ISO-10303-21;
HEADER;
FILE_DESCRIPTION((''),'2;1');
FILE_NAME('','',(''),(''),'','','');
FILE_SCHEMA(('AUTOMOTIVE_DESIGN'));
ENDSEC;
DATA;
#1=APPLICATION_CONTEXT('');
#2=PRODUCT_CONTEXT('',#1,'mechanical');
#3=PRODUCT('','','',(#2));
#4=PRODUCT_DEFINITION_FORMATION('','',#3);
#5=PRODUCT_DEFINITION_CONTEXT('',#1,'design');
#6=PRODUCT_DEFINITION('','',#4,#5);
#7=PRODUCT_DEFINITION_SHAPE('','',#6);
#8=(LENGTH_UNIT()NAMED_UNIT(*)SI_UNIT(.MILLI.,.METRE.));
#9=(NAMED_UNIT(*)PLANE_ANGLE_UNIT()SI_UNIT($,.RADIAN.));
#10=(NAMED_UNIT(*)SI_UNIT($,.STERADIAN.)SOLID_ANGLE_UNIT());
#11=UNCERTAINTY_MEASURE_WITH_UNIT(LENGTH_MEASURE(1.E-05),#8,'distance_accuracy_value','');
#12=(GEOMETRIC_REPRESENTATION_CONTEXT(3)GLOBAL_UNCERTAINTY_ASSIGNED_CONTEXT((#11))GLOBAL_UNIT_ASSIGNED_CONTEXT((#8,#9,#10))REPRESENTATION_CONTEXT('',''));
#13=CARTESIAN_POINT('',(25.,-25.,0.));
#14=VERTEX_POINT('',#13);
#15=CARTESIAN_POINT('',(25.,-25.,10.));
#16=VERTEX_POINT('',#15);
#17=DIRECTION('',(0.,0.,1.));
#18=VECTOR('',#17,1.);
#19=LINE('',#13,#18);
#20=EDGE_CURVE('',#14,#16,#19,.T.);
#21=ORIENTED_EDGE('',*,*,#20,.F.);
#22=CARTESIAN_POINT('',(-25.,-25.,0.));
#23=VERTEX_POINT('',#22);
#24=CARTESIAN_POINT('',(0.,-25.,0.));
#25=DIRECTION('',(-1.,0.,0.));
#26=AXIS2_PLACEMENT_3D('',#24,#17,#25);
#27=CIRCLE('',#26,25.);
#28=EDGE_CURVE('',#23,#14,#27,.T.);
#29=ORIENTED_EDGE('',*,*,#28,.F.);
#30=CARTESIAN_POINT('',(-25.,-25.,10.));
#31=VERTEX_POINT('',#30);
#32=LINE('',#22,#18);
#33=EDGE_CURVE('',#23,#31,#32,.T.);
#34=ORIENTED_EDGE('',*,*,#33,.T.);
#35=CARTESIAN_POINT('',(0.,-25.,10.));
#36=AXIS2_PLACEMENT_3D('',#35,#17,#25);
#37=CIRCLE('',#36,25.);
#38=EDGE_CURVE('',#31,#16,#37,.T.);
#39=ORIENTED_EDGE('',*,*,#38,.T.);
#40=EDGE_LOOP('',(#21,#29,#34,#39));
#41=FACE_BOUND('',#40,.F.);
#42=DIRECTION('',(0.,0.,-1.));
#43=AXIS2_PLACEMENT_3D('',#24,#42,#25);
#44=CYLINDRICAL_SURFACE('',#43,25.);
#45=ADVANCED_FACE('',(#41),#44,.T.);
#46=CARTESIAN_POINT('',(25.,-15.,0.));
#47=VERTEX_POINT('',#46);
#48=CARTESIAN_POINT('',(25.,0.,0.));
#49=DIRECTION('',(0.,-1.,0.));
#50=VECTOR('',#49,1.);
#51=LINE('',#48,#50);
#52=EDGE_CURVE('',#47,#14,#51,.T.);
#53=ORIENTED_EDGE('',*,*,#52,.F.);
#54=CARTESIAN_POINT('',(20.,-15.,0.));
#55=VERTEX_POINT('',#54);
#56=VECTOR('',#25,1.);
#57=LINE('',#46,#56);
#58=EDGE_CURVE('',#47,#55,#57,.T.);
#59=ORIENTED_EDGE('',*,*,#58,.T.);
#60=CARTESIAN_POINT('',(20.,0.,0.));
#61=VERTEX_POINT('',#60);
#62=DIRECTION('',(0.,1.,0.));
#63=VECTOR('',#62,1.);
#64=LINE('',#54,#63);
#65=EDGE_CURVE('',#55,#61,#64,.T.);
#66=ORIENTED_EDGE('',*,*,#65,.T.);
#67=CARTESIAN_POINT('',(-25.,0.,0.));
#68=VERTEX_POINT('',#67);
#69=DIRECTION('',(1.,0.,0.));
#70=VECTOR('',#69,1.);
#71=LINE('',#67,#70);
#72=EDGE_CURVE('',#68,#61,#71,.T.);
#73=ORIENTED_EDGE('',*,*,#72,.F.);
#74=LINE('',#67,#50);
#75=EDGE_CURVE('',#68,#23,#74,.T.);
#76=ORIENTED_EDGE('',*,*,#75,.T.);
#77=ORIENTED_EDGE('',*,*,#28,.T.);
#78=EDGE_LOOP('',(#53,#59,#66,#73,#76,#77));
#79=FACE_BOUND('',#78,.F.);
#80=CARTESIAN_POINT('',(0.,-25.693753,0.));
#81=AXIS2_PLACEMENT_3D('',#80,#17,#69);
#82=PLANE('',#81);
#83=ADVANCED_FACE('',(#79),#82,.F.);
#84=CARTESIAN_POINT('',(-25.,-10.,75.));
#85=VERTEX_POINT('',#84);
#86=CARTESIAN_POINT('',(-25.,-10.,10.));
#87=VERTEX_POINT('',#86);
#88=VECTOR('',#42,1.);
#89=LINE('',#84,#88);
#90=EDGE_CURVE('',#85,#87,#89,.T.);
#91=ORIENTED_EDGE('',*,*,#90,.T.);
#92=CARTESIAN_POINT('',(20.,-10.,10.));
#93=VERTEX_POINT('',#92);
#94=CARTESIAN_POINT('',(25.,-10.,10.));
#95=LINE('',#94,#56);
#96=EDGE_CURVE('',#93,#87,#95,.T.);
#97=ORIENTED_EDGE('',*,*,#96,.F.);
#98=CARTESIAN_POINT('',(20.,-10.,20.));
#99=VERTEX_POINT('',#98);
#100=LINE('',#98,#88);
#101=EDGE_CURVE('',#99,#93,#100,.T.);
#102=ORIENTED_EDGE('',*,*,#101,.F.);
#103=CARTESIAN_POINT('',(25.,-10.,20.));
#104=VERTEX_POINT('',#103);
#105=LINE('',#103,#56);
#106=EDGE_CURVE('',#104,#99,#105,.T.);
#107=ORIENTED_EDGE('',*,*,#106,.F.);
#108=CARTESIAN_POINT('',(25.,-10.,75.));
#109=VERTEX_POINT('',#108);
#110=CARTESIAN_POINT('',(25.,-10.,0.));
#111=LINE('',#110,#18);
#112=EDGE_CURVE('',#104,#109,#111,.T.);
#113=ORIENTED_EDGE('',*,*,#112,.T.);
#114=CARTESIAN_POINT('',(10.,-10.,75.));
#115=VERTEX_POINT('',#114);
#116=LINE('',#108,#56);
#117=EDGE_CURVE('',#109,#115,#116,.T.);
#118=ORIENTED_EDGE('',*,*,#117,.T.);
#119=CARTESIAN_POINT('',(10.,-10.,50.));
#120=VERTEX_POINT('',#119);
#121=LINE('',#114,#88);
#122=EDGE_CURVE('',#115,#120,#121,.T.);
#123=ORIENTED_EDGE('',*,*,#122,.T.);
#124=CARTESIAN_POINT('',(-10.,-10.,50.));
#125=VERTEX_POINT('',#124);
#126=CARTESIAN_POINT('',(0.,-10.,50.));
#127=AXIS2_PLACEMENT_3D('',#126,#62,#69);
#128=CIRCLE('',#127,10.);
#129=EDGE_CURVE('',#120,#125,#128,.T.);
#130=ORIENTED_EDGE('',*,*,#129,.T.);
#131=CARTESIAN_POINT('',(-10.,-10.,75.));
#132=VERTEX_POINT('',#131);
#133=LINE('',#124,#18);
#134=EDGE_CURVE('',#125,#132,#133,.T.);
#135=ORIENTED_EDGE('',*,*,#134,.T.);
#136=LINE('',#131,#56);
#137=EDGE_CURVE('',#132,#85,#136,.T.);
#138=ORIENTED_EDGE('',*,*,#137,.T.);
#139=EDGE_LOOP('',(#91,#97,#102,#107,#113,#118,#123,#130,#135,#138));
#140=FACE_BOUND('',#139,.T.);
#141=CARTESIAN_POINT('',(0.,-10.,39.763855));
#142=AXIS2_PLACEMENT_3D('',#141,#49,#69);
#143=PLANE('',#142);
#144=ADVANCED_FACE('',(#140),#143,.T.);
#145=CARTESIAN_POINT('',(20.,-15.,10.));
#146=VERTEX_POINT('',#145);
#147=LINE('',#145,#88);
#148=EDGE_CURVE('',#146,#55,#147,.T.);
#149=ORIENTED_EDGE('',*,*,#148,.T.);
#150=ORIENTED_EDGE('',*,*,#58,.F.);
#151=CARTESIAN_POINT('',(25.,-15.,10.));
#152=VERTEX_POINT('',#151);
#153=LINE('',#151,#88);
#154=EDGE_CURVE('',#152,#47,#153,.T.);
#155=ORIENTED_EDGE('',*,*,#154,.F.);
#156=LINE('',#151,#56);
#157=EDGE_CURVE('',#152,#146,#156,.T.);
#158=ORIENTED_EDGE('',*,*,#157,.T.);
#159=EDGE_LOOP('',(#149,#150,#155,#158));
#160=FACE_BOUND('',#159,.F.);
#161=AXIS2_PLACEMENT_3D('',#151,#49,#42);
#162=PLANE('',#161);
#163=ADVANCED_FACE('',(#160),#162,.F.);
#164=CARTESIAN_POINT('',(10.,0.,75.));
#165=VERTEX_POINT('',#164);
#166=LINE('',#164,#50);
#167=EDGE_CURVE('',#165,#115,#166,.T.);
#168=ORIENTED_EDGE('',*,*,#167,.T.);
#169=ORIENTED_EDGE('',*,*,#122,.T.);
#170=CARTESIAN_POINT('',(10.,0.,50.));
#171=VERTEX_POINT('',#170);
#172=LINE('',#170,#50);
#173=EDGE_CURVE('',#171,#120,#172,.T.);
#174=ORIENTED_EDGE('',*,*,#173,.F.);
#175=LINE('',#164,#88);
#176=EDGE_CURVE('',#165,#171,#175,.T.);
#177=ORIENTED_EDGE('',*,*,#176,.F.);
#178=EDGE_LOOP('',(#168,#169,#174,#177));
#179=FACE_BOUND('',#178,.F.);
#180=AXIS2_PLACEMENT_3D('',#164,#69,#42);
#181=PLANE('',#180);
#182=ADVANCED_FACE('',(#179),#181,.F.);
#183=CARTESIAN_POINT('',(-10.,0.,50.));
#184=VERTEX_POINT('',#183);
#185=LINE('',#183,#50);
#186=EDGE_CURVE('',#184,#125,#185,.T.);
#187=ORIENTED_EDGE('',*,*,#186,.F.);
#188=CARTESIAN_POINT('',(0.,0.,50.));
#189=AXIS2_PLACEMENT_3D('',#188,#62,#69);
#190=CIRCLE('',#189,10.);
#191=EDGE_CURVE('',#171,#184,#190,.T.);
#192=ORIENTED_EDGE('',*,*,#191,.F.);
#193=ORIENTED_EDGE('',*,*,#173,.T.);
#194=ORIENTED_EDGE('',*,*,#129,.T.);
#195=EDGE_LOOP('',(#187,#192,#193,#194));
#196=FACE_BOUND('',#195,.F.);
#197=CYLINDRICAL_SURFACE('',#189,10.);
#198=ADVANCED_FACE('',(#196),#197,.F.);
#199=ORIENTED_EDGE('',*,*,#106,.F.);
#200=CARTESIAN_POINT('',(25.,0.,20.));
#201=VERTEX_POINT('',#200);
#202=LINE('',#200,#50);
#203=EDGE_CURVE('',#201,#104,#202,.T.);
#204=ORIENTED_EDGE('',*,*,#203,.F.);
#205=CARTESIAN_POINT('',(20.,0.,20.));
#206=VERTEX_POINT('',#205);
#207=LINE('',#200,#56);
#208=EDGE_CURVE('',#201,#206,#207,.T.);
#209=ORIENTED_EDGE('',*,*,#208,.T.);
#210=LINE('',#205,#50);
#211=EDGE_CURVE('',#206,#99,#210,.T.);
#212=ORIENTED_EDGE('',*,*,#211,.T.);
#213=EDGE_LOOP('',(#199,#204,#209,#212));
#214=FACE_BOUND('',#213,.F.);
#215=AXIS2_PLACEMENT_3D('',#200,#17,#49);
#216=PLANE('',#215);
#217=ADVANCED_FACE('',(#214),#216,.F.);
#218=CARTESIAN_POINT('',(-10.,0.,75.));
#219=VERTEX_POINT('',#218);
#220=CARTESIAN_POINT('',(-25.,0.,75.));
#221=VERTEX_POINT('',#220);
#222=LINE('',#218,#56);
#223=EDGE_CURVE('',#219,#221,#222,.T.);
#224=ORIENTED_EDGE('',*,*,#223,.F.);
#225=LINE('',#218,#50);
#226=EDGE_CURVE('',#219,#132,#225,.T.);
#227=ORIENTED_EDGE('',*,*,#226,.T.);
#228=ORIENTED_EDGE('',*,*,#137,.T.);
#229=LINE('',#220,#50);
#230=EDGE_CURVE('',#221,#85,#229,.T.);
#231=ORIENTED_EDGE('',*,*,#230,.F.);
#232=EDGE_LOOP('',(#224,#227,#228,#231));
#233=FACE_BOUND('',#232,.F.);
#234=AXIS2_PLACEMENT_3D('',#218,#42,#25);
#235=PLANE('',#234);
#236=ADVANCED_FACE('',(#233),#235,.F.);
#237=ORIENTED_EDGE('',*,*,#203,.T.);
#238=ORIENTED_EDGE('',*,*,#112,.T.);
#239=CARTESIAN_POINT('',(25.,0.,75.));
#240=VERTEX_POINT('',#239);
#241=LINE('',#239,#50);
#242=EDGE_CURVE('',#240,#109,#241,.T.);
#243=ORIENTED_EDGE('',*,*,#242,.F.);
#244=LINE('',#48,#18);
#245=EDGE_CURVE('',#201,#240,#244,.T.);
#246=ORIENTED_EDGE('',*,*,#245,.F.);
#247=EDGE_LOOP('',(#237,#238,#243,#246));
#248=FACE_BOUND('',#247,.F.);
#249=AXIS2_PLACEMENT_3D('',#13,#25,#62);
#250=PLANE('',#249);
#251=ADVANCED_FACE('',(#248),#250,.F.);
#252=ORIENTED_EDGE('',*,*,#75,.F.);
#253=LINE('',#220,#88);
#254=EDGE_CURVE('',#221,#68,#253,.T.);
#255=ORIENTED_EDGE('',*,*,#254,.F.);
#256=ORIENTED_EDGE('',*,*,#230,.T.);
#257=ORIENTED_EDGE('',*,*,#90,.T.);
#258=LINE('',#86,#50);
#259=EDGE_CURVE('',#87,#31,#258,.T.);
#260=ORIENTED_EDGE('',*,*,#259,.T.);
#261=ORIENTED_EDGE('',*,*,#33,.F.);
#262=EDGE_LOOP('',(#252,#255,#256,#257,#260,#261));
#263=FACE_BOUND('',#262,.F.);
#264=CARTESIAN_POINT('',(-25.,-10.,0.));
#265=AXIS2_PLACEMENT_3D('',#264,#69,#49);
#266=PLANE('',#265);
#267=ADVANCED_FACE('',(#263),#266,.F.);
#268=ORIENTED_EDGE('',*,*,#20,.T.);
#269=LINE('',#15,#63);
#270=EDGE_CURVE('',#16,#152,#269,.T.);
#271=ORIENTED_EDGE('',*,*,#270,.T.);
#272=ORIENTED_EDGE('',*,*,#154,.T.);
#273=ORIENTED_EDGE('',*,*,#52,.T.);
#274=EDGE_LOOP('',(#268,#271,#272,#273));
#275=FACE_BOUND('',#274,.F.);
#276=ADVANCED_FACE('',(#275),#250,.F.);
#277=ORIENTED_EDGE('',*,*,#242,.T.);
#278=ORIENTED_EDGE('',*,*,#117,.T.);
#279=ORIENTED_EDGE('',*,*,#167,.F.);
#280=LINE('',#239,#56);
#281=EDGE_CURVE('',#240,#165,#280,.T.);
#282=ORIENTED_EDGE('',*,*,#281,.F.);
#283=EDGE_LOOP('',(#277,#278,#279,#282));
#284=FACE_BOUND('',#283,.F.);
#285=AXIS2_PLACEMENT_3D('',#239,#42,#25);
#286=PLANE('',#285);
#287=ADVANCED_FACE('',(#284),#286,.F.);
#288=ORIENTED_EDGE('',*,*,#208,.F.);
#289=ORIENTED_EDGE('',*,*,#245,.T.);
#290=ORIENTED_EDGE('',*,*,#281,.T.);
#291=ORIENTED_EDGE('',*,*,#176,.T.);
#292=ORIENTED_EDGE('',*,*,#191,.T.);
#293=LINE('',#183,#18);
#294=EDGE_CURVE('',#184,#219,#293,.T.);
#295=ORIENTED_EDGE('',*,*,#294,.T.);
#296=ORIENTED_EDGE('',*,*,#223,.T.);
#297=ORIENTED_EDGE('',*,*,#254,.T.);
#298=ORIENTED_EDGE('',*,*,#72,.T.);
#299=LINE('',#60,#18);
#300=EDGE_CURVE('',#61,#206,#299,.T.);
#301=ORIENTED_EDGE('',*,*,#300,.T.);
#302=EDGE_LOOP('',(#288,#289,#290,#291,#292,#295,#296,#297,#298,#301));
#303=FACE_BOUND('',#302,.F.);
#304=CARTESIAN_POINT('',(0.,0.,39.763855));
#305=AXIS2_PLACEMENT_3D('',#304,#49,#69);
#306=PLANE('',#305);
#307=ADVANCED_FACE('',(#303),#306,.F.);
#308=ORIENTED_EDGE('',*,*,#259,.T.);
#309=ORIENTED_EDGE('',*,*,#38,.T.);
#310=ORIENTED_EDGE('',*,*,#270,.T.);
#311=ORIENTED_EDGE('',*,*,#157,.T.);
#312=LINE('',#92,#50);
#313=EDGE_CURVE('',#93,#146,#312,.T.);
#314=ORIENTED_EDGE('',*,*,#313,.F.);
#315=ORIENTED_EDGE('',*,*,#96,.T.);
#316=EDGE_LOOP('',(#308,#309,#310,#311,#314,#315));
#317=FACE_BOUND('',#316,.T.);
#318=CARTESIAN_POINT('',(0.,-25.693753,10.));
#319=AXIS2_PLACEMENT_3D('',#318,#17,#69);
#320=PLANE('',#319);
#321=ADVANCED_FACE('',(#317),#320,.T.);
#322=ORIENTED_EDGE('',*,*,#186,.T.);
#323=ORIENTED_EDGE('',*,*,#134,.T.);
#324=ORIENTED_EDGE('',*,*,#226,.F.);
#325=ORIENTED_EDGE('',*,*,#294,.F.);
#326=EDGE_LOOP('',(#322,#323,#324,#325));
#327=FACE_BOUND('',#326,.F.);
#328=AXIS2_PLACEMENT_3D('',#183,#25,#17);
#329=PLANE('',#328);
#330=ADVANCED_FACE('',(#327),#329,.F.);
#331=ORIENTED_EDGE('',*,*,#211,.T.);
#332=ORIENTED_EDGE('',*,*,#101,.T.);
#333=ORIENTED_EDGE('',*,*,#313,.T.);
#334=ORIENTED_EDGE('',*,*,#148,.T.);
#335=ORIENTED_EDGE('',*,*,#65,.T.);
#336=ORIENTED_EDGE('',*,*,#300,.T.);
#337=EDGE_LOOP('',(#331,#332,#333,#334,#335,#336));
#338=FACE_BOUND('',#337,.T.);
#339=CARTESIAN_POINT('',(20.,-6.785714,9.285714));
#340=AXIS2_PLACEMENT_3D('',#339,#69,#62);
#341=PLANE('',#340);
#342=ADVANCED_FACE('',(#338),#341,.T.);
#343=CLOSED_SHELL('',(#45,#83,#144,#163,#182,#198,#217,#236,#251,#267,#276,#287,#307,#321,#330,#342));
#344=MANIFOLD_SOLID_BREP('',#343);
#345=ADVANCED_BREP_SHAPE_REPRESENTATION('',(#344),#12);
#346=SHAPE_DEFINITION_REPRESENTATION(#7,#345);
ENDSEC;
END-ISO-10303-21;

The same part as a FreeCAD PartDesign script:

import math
import FreeCAD as App
import Part
import Sketcher

doc = App.newDocument("Part")
params = doc.addObject("Spreadsheet::Sheet", "Params")
for row, (alias, value) in enumerate([
    ("sketch1_radius", "10 mm"),
    ("sketch1_width", "50 mm"),
    ("sketch1_height", "75 mm"),
    ("sketch1_height2", "25 mm"),
    ("pad1_length", "10 mm"),
    ("sketch2_radius", "25 mm"),
    ("sketch2_height", "15 mm"),
    ("pad2_length", "10 mm"),
    ("sketch3_width", "10 mm"),
    ("sketch3_width2", "5 mm"),
    ("pocket1_length", "5 mm"),
], start=1):
    params.set(f"A{row}", alias)
    params.set(f"B{row}", "=" + value)
    params.setAlias(f"B{row}", alias)

body = doc.addObject("PartDesign::Body", "Body")

# Sketch on XZ plane
sketch1 = body.newObject("Sketcher::SketchObject", "Sketch")
sketch1.AttachmentSupport = (doc.getObject("XZ_Plane"), [""])
sketch1.MapMode = "FlatFace"
sketch1.addGeometry([
    Part.LineSegment(App.Vector(-25, 75, 0), App.Vector(-25, 0, 0)),  # 0
    Part.LineSegment(App.Vector(-25, 0, 0), App.Vector(25, 0, 0)),  # 1
    Part.LineSegment(App.Vector(25, 0, 0), App.Vector(25, 75, 0)),  # 2
    Part.LineSegment(App.Vector(25, 75, 0), App.Vector(10, 75, 0)),  # 3
    Part.LineSegment(App.Vector(10, 75, 0), App.Vector(10, 50, 0)),  # 4
    Part.ArcOfCircle(Part.Circle(App.Vector(0, 50, 0), App.Vector(0, 0, 1), 10), math.radians(180), math.radians(360)),  # 5
    Part.LineSegment(App.Vector(-10, 50, 0), App.Vector(-10, 75, 0)),  # 6
    Part.LineSegment(App.Vector(-10, 75, 0), App.Vector(-25, 75, 0)),  # 7
], False)
sketch1.addConstraint([
    Sketcher.Constraint("Coincident", 0, 2, 1, 1),
    Sketcher.Constraint("Coincident", 1, 2, 2, 1),
    Sketcher.Constraint("Coincident", 2, 2, 3, 1),
    Sketcher.Constraint("Coincident", 3, 2, 4, 1),
    Sketcher.Constraint("Tangent", 4, 2, 5, 2),
    Sketcher.Constraint("Tangent", 5, 1, 6, 1),
    Sketcher.Constraint("Coincident", 6, 2, 7, 1),
    Sketcher.Constraint("Coincident", 7, 2, 0, 1),
    Sketcher.Constraint("Vertical", 0),
    Sketcher.Constraint("Horizontal", 1),
    Sketcher.Constraint("Vertical", 2),
    Sketcher.Constraint("Horizontal", 3),
    Sketcher.Constraint("Vertical", 4),
    Sketcher.Constraint("Vertical", 6),
    Sketcher.Constraint("Horizontal", 7),
    Sketcher.Constraint("Symmetric", 0, 2, 1, 2, -1, 1),
    Sketcher.Constraint("Symmetric", 3, 2, 6, 2, -2),
    Sketcher.Constraint("Radius", 5, 10.0),
    Sketcher.Constraint("DistanceX", 1, 1, 1, 2, 50.0),
    Sketcher.Constraint("DistanceY", 0, 2, 0, 1, 75.0),
    Sketcher.Constraint("DistanceY", 4, 2, 4, 1, 25.0),
])
sketch1.setExpression("Constraints[17]", "Params.sketch1_radius")
sketch1.setExpression("Constraints[18]", "Params.sketch1_width")
sketch1.setExpression("Constraints[19]", "Params.sketch1_height")
sketch1.setExpression("Constraints[20]", "Params.sketch1_height2")
pad1 = body.newObject("PartDesign::Pad", "Pad")
pad1.Profile = sketch1
pad1.setExpression("Length", "Params.pad1_length")

# Sketch on XY plane
sketch2 = body.newObject("Sketcher::SketchObject", "Sketch001")
sketch2.AttachmentSupport = (doc.getObject("XY_Plane"), [""])
sketch2.MapMode = "FlatFace"
sketch2.addGeometry([
    Part.LineSegment(App.Vector(-25, -10, 0), App.Vector(-25, -25, 0)),
    Part.ArcOfCircle(Part.Circle(App.Vector(0, -25, 0), App.Vector(0, 0, 1), 25), math.radians(180), math.radians(360)),
    Part.LineSegment(App.Vector(25, -25, 0), App.Vector(25, -10, 0)),
    Part.LineSegment(App.Vector(25, -10, 0), App.Vector(-25, -10, 0)),
], False)
sketch2.addConstraint([
    Sketcher.Constraint("Tangent", 0, 2, 1, 1),
    Sketcher.Constraint("Tangent", 1, 2, 2, 1),
    Sketcher.Constraint("Coincident", 2, 2, 3, 1),
    Sketcher.Constraint("Coincident", 3, 2, 0, 1),
    Sketcher.Constraint("Vertical", 0),
    Sketcher.Constraint("Vertical", 2),
    Sketcher.Constraint("Horizontal", 3),
    Sketcher.Constraint("PointOnObject", 1, 3, -2),
    Sketcher.Constraint("Radius", 1, 25.0),
    Sketcher.Constraint("DistanceY", 0, 2, 0, 1, 15.0),
    Sketcher.Constraint("DistanceY", 1, 3, -1, 1, 25.0),
])
sketch2.setExpression("Constraints[8]", "Params.sketch2_radius")
sketch2.setExpression("Constraints[9]", "Params.sketch2_height")
pad2 = body.newObject("PartDesign::Pad", "Pad001")
pad2.Profile = sketch2
pad2.setExpression("Length", "Params.pad2_length")

# Sketch on YZ plane
sketch3 = body.newObject("Sketcher::SketchObject", "Sketch002")
sketch3.AttachmentSupport = (doc.getObject("YZ_Plane"), [""])
sketch3.MapMode = "FlatFace"
sketch3.AttachmentOffset = App.Placement(App.Vector(0, 0, 25), App.Rotation())
sketch3.addGeometry([
    Part.LineSegment(App.Vector(0, 20, 0), App.Vector(-10, 20, 0)),  # 0
    Part.LineSegment(App.Vector(-10, 20, 0), App.Vector(-10, 10, 0)),  # 1
    Part.LineSegment(App.Vector(-10, 10, 0), App.Vector(-15, 10, 0)),  # 2
    Part.LineSegment(App.Vector(-15, 10, 0), App.Vector(-15, 0, 0)),  # 3
    Part.LineSegment(App.Vector(-15, 0, 0), App.Vector(0, 0, 0)),  # 4
    Part.LineSegment(App.Vector(0, 0, 0), App.Vector(0, 20, 0)),  # 5
], False)
sketch3.addConstraint([
    Sketcher.Constraint("Coincident", 0, 2, 1, 1),
    Sketcher.Constraint("Coincident", 1, 2, 2, 1),
    Sketcher.Constraint("Coincident", 2, 2, 3, 1),
    Sketcher.Constraint("Coincident", 3, 2, 4, 1),
    Sketcher.Constraint("Coincident", 4, 2, 5, 1),
    Sketcher.Constraint("Coincident", 5, 2, 0, 1),
    Sketcher.Constraint("Horizontal", 0),
    Sketcher.Constraint("Vertical", 1),
    Sketcher.Constraint("Horizontal", 2),
    Sketcher.Constraint("Vertical", 3),
    Sketcher.Constraint("Horizontal", 4),
    Sketcher.Constraint("Vertical", 5),
    Sketcher.Constraint("Coincident", 4, 2, -1, 1),
    Sketcher.Constraint("Equal", 0, 1),
    Sketcher.Constraint("Equal", 1, 3),
    Sketcher.Constraint("DistanceX", 0, 2, 0, 1, 10.0),
    Sketcher.Constraint("DistanceX", 2, 2, 2, 1, 5.0),
])
sketch3.setExpression("Constraints[15]", "Params.sketch3_width")
sketch3.setExpression("Constraints[16]", "Params.sketch3_width2")
pocket1 = body.newObject("PartDesign::Pocket", "Pocket")
pocket1.Profile = sketch3
pocket1.setExpression("Length", "Params.pocket1_length")

doc.recompute()
